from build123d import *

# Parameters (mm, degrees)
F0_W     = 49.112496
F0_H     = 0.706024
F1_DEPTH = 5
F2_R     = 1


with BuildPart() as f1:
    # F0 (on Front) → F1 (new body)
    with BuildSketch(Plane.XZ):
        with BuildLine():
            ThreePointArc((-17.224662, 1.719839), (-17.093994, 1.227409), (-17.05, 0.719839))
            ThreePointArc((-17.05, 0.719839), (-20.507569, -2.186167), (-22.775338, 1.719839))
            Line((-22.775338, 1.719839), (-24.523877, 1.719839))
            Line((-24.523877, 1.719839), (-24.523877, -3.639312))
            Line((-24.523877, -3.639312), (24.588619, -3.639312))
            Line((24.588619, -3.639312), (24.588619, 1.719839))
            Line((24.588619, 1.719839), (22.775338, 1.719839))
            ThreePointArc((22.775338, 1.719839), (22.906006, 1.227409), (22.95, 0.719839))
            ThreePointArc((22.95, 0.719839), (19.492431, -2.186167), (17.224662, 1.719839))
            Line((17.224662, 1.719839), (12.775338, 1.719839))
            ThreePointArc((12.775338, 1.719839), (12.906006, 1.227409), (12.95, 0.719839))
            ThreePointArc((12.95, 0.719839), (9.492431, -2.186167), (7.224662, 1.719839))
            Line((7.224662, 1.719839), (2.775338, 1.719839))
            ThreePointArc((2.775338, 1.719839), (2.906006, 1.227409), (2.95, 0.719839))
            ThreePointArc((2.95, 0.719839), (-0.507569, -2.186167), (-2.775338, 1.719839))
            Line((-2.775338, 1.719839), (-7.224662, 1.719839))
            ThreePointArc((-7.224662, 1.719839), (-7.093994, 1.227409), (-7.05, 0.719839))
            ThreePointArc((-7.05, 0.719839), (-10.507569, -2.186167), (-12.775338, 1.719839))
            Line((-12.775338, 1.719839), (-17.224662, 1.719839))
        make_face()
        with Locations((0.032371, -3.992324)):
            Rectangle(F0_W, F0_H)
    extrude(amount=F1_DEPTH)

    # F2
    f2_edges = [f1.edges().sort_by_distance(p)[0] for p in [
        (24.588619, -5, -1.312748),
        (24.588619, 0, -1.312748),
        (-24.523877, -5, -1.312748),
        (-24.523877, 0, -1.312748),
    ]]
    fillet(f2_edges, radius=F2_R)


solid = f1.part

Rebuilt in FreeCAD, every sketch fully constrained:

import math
import FreeCAD as App
import Part
import Sketcher
Q = App.Units.Quantity


def edges_at(feature, points):
    """Names of the edges that pass closest to the given points."""
    edges = feature.Shape.Edges
    near = lambda p: min(range(len(edges)), key=lambda i: edges[i].distToShape(Part.Vertex(*p))[0])
    return sorted({f"Edge{near(p) + 1}" for p in points})

doc = App.newDocument("Part")
body = doc.addObject("PartDesign::Body", "Body")

sketch1 = doc.addObject("Sketcher::SketchObject", "Sketch")
body.addObject(sketch1)
sketch1.AttachmentSupport = (doc.XZ_Plane, [""])
sketch1.MapMode = "FlatFace"
sketch1.addGeometry([
    Part.ArcOfCircle(Part.Circle(App.Vector(-20.000026, 0.719835, 0), App.Vector(0, 0, 1), 2.950026), math.radians(0.000079), math.radians(19.814829)),
    Part.ArcOfCircle(Part.Circle(App.Vector(-20, 0.719839, 0), App.Vector(0, 0, 1), 2.95), math.radians(160.185082), math.radians(359.99999)),
    Part.LineSegment(App.Vector(-22.775338, 1.719839, 0), App.Vector(-24.523877, 1.719839, 0)),
    Part.LineSegment(App.Vector(-24.523877, 1.719839, 0), App.Vector(-24.523877, -4.345336, 0)),
    Part.LineSegment(App.Vector(-24.523877, -4.345336, 0), App.Vector(24.588619, -4.345336, 0)),
    Part.LineSegment(App.Vector(24.588619, -4.345336, 0), App.Vector(24.588619, 1.719839, 0)),
    Part.LineSegment(App.Vector(24.588619, 1.719839, 0), App.Vector(22.775338, 1.719839, 0)),
    Part.ArcOfCircle(Part.Circle(App.Vector(19.999974, 0.719835, 0), App.Vector(0, 0, 1), 2.950026), math.radians(0.000079), math.radians(19.814829)),
    Part.ArcOfCircle(Part.Circle(App.Vector(20, 0.719839, 0), App.Vector(0, 0, 1), 2.95), math.radians(160.185082), math.radians(359.99999)),
    Part.LineSegment(App.Vector(17.224662, 1.719839, 0), App.Vector(12.775338, 1.719839, 0)),
    Part.ArcOfCircle(Part.Circle(App.Vector(9.999974, 0.719835, 0), App.Vector(0, 0, 1), 2.950026), math.radians(0.000079), math.radians(19.814829)),
    Part.ArcOfCircle(Part.Circle(App.Vector(10, 0.719839, 0), App.Vector(0, 0, 1), 2.95), math.radians(160.185082), math.radians(359.99999)),
    Part.LineSegment(App.Vector(7.224662, 1.719839, 0), App.Vector(2.775338, 1.719839, 0)),
    Part.ArcOfCircle(Part.Circle(App.Vector(-0.000026, 0.719835, 0), App.Vector(0, 0, 1), 2.950026), math.radians(0.000079), math.radians(19.814829)),
    Part.ArcOfCircle(Part.Circle(App.Vector(0, 0.719839, 0), App.Vector(0, 0, 1), 2.95), math.radians(160.185082), math.radians(359.99999)),
    Part.LineSegment(App.Vector(-2.775338, 1.719839, 0), App.Vector(-7.224662, 1.719839, 0)),
    Part.ArcOfCircle(Part.Circle(App.Vector(-10.000026, 0.719835, 0), App.Vector(0, 0, 1), 2.950026), math.radians(0.000079), math.radians(19.814829)),
    Part.ArcOfCircle(Part.Circle(App.Vector(-10, 0.719839, 0), App.Vector(0, 0, 1), 2.95), math.radians(160.185082), math.radians(359.99999)),
    Part.LineSegment(App.Vector(-12.775338, 1.719839, 0), App.Vector(-17.224662, 1.719839, 0)),
], False)
sketch1.addConstraint([
    Sketcher.Constraint("Coincident", 0, 1, 1, 2),
    Sketcher.Constraint("Coincident", 1, 1, 2, 1),
    Sketcher.Constraint("Coincident", 2, 2, 3, 1),
    Sketcher.Constraint("Coincident", 3, 2, 4, 1),
    Sketcher.Constraint("Coincident", 4, 2, 5, 1),
    Sketcher.Constraint("Coincident", 5, 2, 6, 1),
    Sketcher.Constraint("Coincident", 6, 2, 7, 2),
    Sketcher.Constraint("Coincident", 7, 1, 8, 2),
    Sketcher.Constraint("Coincident", 8, 1, 9, 1),
    Sketcher.Constraint("Coincident", 9, 2, 10, 2),
    Sketcher.Constraint("Coincident", 10, 1, 11, 2),
    Sketcher.Constraint("Coincident", 11, 1, 12, 1),
    Sketcher.Constraint("Coincident", 12, 2, 13, 2),
    Sketcher.Constraint("Coincident", 13, 1, 14, 2),
    Sketcher.Constraint("Coincident", 14, 1, 15, 1),
    Sketcher.Constraint("Coincident", 15, 2, 16, 2),
    Sketcher.Constraint("Coincident", 16, 1, 17, 2),
    Sketcher.Constraint("Coincident", 17, 1, 18, 1),
    Sketcher.Constraint("Coincident", 18, 2, 0, 2),
    Sketcher.Constraint("Horizontal", 2),
    Sketcher.Constraint("Vertical", 3),
    Sketcher.Constraint("Horizontal", 4),
    Sketcher.Constraint("Vertical", 5),
    Sketcher.Constraint("Horizontal", 6),
    Sketcher.Constraint("Horizontal", 9),
    Sketcher.Constraint("Horizontal", 12),
    Sketcher.Constraint("Horizontal", 15),
    Sketcher.Constraint("Horizontal", 18),
    Sketcher.Constraint("PointOnObject", 14, 3, -2),
    Sketcher.Constraint("Radius", 1, Q("2.95 mm")),
    Sketcher.Constraint("Radius", 8, Q("2.95 mm")),
    Sketcher.Constraint("Radius", 11, Q("2.95 mm")),
    Sketcher.Constraint("Radius", 14, Q("2.95 mm")),
    Sketcher.Constraint("Radius", 17, Q("2.95 mm")),
    Sketcher.Constraint("DistanceX", 1, 3, -1, 1, Q("20 mm")),
    Sketcher.Constraint("DistanceX", -1, 1, 8, 3, Q("20 mm")),
    Sketcher.Constraint("DistanceX", -1, 1, 11, 3, Q("10 mm")),
    Sketcher.Constraint("DistanceX", 17, 3, -1, 1, Q("10 mm")),
    Sketcher.Constraint("DistanceX", 0, 3, 7, 3, Q("40 mm")),
    Sketcher.Constraint("DistanceX", 10, 3, 7, 3, Q("10 mm")),
    Sketcher.Constraint("DistanceX", 13, 3, 10, 3, Q("10 mm")),
    Sketcher.Constraint("DistanceX", 0, 3, 16, 3, Q("10 mm")),
    Sketcher.Constraint("DistanceY", 1, 3, 1, 1, Q("1 mm")),
    Sketcher.Constraint("DistanceY", 0, 1, 1, 1, Q("1 mm")),
    Sketcher.Constraint("DistanceY", 17, 3, 1, 1, Q("1 mm")),
    Sketcher.Constraint("DistanceY", 8, 3, 5, 2, Q("1 mm")),
    Sketcher.Constraint("DistanceY", 11, 3, 5, 2, Q("1 mm")),
    Sketcher.Constraint("DistanceY", 7, 1, 6, 2, Q("1 mm")),
    Sketcher.Constraint("DistanceY", 8, 3, 8, 1, Q("1 mm")),
    Sketcher.Constraint("DistanceY", 10, 1, 9, 2, Q("1 mm")),
    Sketcher.Constraint("DistanceY", 11, 3, 11, 1, Q("1 mm")),
    Sketcher.Constraint("DistanceY", 14, 3, 11, 1, Q("1 mm")),
    Sketcher.Constraint("DistanceY", 13, 1, 12, 2, Q("1 mm")),
    Sketcher.Constraint("DistanceY", 14, 3, 14, 1, Q("1 mm")),
    Sketcher.Constraint("DistanceY", 17, 3, 14, 1, Q("1 mm")),
    Sketcher.Constraint("DistanceY", 16, 1, 15, 2, Q("1 mm")),
    Sketcher.Constraint("DistanceY", 17, 3, 17, 1, Q("1 mm")),
    Sketcher.Constraint("Radius", 0, Q("2.950026 mm")),
    Sketcher.Constraint("DistanceX", 2, 2, 2, 1, Q("1.748539 mm")),
    Sketcher.Constraint("DistanceX", 6, 2, 6, 1, Q("1.813281 mm")),
    Sketcher.Constraint("DistanceX", 4, 1, 4, 2, Q("49.112496 mm")),
    Sketcher.Constraint("DistanceX", 9, 2, 9, 1, Q("4.449324 mm")),
    Sketcher.Constraint("DistanceX", 12, 2, 12, 1, Q("4.449324 mm")),
    Sketcher.Constraint("DistanceX", 15, 2, 15, 1, Q("4.449324 mm")),
    Sketcher.Constraint("DistanceX", 18, 2, 18, 1, Q("4.449324 mm")),
    Sketcher.Constraint("DistanceY", 3, 2, 3, 1, Q("6.065175 mm")),
    Sketcher.Constraint("DistanceY", -1, 1, 1, 3, Q("0.719839 mm")),
])
pad1 = doc.addObject("PartDesign::Pad", "Pad")
body.addObject(pad1)
pad1.Profile = sketch1
pad1.Length = 5
doc.recompute()

fillet = doc.addObject("PartDesign::Fillet", "Fillet")
body.addObject(fillet)
fillet.Base = (pad1, edges_at(pad1, [
    (24.589, -5, -1.313),
    (24.589, 0, -1.313),
    (-24.524, -5, -1.313),
    (-24.524, 0, -1.313),
]))
fillet.Radius = 1

doc.recompute()
